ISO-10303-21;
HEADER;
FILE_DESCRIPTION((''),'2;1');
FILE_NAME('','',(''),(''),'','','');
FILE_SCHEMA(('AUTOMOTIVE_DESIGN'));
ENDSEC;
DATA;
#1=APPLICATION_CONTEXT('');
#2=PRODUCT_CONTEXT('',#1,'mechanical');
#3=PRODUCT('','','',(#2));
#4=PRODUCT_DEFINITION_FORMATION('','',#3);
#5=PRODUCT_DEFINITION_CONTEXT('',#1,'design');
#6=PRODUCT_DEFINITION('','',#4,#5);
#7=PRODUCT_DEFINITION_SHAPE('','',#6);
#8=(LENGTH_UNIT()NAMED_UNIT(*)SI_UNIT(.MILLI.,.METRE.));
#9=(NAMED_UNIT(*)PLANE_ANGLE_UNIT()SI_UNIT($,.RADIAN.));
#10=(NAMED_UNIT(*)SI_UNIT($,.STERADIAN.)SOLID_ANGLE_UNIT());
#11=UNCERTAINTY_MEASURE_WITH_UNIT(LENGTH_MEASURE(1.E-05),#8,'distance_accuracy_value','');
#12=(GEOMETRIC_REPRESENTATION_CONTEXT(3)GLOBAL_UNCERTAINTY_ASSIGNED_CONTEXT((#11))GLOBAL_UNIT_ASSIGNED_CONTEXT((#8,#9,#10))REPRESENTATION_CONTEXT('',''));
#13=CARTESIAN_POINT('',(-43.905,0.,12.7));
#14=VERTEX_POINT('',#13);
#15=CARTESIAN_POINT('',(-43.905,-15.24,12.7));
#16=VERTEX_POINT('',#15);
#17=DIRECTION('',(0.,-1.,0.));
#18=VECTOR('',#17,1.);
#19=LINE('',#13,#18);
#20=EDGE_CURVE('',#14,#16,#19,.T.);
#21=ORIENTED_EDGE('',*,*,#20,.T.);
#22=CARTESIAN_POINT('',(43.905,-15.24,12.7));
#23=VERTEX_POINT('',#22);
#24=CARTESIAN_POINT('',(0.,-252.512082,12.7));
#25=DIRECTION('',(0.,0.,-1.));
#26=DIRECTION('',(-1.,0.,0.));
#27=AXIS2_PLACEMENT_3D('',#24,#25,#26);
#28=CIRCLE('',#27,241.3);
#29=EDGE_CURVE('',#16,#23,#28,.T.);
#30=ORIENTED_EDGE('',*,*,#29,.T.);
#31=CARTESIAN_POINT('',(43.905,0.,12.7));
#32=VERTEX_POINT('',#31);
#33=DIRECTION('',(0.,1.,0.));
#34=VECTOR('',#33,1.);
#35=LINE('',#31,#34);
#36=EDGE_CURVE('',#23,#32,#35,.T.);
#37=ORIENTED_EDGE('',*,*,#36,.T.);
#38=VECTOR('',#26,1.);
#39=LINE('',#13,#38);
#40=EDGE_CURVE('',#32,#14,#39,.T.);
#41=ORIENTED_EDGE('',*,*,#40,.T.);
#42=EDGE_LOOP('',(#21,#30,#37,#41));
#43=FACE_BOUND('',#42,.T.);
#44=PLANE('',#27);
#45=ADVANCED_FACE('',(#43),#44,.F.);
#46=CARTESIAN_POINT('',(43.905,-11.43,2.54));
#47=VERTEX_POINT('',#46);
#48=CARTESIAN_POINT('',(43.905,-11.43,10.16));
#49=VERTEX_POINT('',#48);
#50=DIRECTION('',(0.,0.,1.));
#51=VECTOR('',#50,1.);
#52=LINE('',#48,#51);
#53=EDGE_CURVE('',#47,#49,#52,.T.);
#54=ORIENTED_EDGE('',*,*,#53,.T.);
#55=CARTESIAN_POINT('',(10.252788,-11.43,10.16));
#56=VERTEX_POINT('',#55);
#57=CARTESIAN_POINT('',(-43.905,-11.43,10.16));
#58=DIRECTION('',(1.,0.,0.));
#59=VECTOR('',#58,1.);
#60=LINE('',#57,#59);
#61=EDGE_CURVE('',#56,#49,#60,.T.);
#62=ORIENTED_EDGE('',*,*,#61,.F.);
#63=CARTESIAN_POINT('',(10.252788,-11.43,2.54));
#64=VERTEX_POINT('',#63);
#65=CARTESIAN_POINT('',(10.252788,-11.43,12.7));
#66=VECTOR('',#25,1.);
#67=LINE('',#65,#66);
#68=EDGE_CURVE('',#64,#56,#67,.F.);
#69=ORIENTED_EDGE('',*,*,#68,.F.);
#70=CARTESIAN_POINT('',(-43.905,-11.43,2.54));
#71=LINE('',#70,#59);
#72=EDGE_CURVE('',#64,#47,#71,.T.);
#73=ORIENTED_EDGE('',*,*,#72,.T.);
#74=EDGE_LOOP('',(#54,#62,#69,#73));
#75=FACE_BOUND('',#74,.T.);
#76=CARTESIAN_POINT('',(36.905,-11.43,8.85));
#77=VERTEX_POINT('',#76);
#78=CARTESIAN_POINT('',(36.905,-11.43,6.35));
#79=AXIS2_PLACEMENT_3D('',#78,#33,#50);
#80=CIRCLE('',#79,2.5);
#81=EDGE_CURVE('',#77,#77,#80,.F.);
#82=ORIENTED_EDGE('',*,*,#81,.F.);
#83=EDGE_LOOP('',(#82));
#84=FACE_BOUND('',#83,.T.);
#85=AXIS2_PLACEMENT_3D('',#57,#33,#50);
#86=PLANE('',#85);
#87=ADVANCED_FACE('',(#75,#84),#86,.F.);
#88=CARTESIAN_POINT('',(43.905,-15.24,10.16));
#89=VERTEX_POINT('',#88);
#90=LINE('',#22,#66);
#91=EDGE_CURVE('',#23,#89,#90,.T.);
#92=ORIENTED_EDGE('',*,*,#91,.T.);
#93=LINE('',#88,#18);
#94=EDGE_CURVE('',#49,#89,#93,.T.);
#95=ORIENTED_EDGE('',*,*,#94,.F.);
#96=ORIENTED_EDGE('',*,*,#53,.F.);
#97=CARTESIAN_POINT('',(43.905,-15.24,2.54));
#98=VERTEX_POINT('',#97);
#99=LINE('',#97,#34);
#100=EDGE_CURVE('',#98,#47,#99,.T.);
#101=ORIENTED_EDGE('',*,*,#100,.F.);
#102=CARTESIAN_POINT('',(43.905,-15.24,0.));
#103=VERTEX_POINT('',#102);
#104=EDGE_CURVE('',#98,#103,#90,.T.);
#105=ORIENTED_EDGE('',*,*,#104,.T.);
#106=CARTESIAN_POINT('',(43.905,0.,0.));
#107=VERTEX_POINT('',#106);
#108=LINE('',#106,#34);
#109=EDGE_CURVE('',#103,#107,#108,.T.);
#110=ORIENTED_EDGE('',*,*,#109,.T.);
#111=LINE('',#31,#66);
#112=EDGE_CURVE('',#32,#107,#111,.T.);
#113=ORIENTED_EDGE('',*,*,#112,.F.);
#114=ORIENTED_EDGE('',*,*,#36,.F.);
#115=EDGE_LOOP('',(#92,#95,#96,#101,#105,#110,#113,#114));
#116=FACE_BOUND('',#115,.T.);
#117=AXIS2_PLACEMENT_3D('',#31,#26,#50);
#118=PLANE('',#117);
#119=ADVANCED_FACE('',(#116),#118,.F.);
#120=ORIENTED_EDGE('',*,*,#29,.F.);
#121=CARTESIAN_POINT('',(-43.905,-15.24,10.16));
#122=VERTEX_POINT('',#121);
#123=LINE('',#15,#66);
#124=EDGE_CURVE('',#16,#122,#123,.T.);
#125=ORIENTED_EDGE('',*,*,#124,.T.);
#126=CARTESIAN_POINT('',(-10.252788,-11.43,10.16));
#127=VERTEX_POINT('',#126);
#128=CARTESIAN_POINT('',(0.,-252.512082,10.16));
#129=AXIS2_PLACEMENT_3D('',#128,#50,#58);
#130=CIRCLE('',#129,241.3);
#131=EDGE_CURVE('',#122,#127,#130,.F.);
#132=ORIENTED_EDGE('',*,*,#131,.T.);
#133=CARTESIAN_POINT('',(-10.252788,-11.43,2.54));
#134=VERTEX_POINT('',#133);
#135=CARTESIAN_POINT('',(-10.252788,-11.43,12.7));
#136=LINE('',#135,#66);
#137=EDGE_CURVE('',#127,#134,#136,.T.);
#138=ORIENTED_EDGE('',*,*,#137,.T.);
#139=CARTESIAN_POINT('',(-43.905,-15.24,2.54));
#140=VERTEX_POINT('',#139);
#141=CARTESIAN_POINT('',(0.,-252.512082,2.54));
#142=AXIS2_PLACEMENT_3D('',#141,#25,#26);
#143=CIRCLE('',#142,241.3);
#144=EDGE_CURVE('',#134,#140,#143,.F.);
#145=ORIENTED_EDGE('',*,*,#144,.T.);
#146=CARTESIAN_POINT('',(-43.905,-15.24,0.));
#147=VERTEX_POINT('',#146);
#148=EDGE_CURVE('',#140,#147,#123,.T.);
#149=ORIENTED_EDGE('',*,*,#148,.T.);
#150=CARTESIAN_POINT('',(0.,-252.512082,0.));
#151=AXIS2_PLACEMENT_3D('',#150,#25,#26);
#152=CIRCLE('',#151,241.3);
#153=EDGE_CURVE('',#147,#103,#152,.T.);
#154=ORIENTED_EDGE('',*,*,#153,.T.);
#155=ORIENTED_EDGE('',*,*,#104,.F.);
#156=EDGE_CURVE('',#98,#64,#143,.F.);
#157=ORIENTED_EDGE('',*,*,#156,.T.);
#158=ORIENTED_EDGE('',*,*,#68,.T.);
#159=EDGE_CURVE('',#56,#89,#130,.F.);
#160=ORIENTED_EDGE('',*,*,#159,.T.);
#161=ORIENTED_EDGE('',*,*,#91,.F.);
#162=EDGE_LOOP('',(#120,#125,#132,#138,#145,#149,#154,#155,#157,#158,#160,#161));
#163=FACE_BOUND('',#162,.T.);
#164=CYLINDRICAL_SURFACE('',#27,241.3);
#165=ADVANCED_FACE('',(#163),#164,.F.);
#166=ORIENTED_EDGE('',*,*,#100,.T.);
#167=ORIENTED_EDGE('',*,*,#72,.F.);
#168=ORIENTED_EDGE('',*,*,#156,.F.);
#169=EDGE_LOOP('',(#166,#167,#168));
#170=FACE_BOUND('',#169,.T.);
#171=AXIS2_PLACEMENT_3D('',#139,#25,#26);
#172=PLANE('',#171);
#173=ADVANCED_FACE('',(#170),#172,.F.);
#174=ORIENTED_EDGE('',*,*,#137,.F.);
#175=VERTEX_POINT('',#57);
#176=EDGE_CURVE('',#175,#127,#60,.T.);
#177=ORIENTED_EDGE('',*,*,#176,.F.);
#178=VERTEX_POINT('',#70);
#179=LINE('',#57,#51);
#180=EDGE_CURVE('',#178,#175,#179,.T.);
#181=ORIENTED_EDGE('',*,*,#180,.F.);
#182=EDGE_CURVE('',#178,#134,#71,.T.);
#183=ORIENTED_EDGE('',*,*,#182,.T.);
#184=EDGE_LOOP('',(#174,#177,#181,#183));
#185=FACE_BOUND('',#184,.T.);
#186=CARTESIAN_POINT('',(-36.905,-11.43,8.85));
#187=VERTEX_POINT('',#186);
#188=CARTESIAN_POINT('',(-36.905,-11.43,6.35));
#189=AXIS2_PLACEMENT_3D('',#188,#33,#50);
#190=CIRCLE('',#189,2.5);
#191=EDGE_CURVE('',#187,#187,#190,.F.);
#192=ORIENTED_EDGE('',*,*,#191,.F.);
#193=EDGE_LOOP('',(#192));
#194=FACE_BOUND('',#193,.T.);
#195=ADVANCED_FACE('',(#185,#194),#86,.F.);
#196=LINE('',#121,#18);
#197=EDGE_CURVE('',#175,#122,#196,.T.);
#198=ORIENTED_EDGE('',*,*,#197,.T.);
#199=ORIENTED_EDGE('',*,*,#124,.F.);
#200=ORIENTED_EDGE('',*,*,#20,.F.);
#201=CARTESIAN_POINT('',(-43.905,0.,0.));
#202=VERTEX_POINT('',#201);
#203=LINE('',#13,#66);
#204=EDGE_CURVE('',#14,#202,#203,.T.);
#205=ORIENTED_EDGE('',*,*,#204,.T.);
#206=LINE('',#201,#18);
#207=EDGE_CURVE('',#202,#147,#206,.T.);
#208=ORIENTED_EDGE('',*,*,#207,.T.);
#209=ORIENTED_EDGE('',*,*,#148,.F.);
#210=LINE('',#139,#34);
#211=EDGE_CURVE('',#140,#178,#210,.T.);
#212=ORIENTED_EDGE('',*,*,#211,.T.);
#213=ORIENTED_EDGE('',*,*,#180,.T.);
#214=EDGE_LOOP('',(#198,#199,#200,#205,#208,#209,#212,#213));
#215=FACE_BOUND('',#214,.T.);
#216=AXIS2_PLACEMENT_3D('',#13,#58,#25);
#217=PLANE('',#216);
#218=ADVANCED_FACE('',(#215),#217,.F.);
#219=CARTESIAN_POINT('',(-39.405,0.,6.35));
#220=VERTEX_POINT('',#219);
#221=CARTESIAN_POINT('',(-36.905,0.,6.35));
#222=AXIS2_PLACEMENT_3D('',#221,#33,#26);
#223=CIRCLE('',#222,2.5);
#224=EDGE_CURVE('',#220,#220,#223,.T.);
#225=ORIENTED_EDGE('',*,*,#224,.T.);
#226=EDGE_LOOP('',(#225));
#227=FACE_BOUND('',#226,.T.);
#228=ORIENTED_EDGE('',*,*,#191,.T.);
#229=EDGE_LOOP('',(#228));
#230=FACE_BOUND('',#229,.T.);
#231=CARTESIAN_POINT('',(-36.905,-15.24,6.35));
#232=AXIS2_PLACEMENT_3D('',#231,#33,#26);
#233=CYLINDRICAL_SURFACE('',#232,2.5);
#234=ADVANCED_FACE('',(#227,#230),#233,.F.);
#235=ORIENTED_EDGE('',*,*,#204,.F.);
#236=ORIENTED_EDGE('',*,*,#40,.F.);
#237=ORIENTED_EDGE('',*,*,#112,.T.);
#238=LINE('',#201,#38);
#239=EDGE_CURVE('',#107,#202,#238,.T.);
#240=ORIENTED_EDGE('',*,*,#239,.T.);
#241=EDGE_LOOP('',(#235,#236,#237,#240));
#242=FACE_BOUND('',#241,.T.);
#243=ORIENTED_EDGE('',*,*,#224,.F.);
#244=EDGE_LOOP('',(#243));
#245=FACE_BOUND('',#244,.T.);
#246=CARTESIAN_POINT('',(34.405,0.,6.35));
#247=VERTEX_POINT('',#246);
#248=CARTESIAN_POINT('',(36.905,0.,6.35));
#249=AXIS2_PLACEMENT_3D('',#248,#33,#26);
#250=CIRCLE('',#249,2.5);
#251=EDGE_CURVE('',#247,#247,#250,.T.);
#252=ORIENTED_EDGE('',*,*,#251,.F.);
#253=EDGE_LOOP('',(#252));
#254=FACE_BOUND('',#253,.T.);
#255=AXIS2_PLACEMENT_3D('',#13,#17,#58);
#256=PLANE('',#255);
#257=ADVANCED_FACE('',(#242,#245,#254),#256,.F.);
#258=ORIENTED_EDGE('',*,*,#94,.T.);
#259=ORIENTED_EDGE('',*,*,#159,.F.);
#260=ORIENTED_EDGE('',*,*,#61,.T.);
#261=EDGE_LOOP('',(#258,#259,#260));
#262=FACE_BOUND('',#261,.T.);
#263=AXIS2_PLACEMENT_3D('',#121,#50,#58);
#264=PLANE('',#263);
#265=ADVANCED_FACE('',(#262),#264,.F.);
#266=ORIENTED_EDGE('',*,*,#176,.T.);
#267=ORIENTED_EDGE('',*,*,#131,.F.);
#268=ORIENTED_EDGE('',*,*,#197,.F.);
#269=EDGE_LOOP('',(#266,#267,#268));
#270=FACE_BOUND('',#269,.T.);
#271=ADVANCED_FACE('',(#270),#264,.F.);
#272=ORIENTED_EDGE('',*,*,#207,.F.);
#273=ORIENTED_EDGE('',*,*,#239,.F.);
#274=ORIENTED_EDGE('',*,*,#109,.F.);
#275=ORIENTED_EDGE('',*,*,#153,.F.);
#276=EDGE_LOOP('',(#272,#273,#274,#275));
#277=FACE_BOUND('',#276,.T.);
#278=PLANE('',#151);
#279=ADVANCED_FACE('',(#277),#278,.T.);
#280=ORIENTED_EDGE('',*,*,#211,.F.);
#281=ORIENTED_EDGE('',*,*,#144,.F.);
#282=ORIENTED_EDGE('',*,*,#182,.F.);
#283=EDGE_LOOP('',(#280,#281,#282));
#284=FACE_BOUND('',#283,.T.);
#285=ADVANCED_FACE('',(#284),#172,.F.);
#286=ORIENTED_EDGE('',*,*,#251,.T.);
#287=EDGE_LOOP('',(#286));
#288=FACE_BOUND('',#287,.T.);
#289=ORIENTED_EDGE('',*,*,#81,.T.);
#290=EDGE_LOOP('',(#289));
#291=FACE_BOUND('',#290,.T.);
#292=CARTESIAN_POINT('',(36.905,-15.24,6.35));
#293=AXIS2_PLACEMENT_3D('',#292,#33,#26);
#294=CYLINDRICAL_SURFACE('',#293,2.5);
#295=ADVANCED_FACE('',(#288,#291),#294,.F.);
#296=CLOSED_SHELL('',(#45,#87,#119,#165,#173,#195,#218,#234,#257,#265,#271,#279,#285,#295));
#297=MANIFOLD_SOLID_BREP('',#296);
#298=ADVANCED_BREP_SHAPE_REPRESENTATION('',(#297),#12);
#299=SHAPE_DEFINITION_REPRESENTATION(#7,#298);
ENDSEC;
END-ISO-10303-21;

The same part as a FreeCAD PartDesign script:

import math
import FreeCAD as App
import Part
import Sketcher
Q = App.Units.Quantity

doc = App.newDocument("Part")
body = doc.addObject("PartDesign::Body", "Body")

sketch1 = body.newObject("Sketcher::SketchObject", "Sketch")
sketch1.AttachmentSupport = (doc.getObject("XY_Plane"), [""])
sketch1.MapMode = "FlatFace"
sketch1.addGeometry([
    Part.LineSegment(App.Vector(44, 0, 0), App.Vector(-44, 0, 0)),
    Part.LineSegment(App.Vector(-44, 0, 0), App.Vector(-44, -15, 0)),
    Part.ArcOfCircle(Part.Circle(App.Vector(0, -253, 0), App.Vector(0, 0, 1), 241), math.radians(80), math.radians(100)),
    Part.LineSegment(App.Vector(44, -15, 0), App.Vector(44, 0, 0)),
], False)
sketch1.addConstraint([
    Sketcher.Constraint("Coincident", 0, 2, 1, 1),
    Sketcher.Constraint("Coincident", 1, 2, 2, 2),
    Sketcher.Constraint("Coincident", 2, 1, 3, 1),
    Sketcher.Constraint("Coincident", 3, 2, 0, 1),
    Sketcher.Constraint("Horizontal", 0),
    Sketcher.Constraint("Vertical", 1),
    Sketcher.Constraint("Vertical", 3),
    Sketcher.Constraint("Symmetric", 0, 2, 3, 2, -1, 1),
    Sketcher.Constraint("PointOnObject", 2, 3, -2),
    Sketcher.Constraint("Radius", 2, Q("9.5 in")),
    Sketcher.Constraint("DistanceY", 1, 2, 1, 1, Q("0.6 in")),
    Sketcher.Constraint("DistanceX", 0, 2, 0, 1, 87.81),
])
pad1 = body.newObject("PartDesign::Pad", "Pad")
pad1.Profile = sketch1
pad1.Length = Q("0.5 in")

sketch2 = body.newObject("Sketcher::SketchObject", "Sketch001")
sketch2.AttachmentSupport = (doc.getObject("XZ_Plane"), [""])
sketch2.MapMode = "FlatFace"
sketch2.addGeometry([
    Part.Circle(App.Vector(-36.9, 6.3, 0), App.Vector(0, 0, 1), 2.5),
    Part.Circle(App.Vector(36.9, 6.3, 0), App.Vector(0, 0, 1), 2.5),
], False)
sketch2.addConstraint([
    Sketcher.Constraint("Equal", 0, 1),
    Sketcher.Constraint("Symmetric", 0, 3, 1, 3, -2),
    Sketcher.Constraint("Diameter", 0, 5.0),
    Sketcher.Constraint("DistanceY", -1, 1, 0, 3, Q("0.25 in")),
    Sketcher.Constraint("DistanceX", 0, 3, -1, 1, 36.905),
])
pocket1 = body.newObject("PartDesign::Pocket", "Pocket")
pocket1.Profile = sketch2
pocket1.Type = "ThroughAll"
pocket1.Reversed = True

sketch3 = body.newObject("Sketcher::SketchObject", "Sketch002")
sketch3.AttachmentSupport = (doc.getObject("YZ_Plane"), [""])
sketch3.MapMode = "FlatFace"
sketch3.AttachmentOffset = App.Placement(App.Vector(0, 0, 43.905), App.Rotation())
sketch3.addGeometry([
    Part.LineSegment(App.Vector(-11.4, 10.2, 0), App.Vector(-15.2, 10.2, 0)),
    Part.LineSegment(App.Vector(-15.2, 10.2, 0), App.Vector(-15.2, 2.5, 0)),
    Part.LineSegment(App.Vector(-15.2, 2.5, 0), App.Vector(-11.4, 2.5, 0)),
    Part.LineSegment(App.Vector(-11.4, 2.5, 0), App.Vector(-11.4, 10.2, 0)),
], False)
sketch3.addConstraint([
    Sketcher.Constraint("Coincident", 0, 2, 1, 1),
    Sketcher.Constraint("Coincident", 1, 2, 2, 1),
    Sketcher.Constraint("Coincident", 2, 2, 3, 1),
    Sketcher.Constraint("Coincident", 3, 2, 0, 1),
    Sketcher.Constraint("Horizontal", 0),
    Sketcher.Constraint("Vertical", 1),
    Sketcher.Constraint("Horizontal", 2),
    Sketcher.Constraint("Vertical", 3),
    Sketcher.Constraint("DistanceY", 1, 2, 1, 1, Q("0.3 in")),
    Sketcher.Constraint("DistanceX", 0, 2, 0, 1, Q("0.15 in")),
    Sketcher.Constraint("DistanceX", 0, 2, -1, 1, Q("0.6 in")),
    Sketcher.Constraint("DistanceY", -1, 1, 0, 2, Q("0.4 in")),
])
pocket2 = body.newObject("PartDesign::Pocket", "Pocket001")
pocket2.Profile = sketch3
pocket2.Type = "ThroughAll"

doc.recompute()
